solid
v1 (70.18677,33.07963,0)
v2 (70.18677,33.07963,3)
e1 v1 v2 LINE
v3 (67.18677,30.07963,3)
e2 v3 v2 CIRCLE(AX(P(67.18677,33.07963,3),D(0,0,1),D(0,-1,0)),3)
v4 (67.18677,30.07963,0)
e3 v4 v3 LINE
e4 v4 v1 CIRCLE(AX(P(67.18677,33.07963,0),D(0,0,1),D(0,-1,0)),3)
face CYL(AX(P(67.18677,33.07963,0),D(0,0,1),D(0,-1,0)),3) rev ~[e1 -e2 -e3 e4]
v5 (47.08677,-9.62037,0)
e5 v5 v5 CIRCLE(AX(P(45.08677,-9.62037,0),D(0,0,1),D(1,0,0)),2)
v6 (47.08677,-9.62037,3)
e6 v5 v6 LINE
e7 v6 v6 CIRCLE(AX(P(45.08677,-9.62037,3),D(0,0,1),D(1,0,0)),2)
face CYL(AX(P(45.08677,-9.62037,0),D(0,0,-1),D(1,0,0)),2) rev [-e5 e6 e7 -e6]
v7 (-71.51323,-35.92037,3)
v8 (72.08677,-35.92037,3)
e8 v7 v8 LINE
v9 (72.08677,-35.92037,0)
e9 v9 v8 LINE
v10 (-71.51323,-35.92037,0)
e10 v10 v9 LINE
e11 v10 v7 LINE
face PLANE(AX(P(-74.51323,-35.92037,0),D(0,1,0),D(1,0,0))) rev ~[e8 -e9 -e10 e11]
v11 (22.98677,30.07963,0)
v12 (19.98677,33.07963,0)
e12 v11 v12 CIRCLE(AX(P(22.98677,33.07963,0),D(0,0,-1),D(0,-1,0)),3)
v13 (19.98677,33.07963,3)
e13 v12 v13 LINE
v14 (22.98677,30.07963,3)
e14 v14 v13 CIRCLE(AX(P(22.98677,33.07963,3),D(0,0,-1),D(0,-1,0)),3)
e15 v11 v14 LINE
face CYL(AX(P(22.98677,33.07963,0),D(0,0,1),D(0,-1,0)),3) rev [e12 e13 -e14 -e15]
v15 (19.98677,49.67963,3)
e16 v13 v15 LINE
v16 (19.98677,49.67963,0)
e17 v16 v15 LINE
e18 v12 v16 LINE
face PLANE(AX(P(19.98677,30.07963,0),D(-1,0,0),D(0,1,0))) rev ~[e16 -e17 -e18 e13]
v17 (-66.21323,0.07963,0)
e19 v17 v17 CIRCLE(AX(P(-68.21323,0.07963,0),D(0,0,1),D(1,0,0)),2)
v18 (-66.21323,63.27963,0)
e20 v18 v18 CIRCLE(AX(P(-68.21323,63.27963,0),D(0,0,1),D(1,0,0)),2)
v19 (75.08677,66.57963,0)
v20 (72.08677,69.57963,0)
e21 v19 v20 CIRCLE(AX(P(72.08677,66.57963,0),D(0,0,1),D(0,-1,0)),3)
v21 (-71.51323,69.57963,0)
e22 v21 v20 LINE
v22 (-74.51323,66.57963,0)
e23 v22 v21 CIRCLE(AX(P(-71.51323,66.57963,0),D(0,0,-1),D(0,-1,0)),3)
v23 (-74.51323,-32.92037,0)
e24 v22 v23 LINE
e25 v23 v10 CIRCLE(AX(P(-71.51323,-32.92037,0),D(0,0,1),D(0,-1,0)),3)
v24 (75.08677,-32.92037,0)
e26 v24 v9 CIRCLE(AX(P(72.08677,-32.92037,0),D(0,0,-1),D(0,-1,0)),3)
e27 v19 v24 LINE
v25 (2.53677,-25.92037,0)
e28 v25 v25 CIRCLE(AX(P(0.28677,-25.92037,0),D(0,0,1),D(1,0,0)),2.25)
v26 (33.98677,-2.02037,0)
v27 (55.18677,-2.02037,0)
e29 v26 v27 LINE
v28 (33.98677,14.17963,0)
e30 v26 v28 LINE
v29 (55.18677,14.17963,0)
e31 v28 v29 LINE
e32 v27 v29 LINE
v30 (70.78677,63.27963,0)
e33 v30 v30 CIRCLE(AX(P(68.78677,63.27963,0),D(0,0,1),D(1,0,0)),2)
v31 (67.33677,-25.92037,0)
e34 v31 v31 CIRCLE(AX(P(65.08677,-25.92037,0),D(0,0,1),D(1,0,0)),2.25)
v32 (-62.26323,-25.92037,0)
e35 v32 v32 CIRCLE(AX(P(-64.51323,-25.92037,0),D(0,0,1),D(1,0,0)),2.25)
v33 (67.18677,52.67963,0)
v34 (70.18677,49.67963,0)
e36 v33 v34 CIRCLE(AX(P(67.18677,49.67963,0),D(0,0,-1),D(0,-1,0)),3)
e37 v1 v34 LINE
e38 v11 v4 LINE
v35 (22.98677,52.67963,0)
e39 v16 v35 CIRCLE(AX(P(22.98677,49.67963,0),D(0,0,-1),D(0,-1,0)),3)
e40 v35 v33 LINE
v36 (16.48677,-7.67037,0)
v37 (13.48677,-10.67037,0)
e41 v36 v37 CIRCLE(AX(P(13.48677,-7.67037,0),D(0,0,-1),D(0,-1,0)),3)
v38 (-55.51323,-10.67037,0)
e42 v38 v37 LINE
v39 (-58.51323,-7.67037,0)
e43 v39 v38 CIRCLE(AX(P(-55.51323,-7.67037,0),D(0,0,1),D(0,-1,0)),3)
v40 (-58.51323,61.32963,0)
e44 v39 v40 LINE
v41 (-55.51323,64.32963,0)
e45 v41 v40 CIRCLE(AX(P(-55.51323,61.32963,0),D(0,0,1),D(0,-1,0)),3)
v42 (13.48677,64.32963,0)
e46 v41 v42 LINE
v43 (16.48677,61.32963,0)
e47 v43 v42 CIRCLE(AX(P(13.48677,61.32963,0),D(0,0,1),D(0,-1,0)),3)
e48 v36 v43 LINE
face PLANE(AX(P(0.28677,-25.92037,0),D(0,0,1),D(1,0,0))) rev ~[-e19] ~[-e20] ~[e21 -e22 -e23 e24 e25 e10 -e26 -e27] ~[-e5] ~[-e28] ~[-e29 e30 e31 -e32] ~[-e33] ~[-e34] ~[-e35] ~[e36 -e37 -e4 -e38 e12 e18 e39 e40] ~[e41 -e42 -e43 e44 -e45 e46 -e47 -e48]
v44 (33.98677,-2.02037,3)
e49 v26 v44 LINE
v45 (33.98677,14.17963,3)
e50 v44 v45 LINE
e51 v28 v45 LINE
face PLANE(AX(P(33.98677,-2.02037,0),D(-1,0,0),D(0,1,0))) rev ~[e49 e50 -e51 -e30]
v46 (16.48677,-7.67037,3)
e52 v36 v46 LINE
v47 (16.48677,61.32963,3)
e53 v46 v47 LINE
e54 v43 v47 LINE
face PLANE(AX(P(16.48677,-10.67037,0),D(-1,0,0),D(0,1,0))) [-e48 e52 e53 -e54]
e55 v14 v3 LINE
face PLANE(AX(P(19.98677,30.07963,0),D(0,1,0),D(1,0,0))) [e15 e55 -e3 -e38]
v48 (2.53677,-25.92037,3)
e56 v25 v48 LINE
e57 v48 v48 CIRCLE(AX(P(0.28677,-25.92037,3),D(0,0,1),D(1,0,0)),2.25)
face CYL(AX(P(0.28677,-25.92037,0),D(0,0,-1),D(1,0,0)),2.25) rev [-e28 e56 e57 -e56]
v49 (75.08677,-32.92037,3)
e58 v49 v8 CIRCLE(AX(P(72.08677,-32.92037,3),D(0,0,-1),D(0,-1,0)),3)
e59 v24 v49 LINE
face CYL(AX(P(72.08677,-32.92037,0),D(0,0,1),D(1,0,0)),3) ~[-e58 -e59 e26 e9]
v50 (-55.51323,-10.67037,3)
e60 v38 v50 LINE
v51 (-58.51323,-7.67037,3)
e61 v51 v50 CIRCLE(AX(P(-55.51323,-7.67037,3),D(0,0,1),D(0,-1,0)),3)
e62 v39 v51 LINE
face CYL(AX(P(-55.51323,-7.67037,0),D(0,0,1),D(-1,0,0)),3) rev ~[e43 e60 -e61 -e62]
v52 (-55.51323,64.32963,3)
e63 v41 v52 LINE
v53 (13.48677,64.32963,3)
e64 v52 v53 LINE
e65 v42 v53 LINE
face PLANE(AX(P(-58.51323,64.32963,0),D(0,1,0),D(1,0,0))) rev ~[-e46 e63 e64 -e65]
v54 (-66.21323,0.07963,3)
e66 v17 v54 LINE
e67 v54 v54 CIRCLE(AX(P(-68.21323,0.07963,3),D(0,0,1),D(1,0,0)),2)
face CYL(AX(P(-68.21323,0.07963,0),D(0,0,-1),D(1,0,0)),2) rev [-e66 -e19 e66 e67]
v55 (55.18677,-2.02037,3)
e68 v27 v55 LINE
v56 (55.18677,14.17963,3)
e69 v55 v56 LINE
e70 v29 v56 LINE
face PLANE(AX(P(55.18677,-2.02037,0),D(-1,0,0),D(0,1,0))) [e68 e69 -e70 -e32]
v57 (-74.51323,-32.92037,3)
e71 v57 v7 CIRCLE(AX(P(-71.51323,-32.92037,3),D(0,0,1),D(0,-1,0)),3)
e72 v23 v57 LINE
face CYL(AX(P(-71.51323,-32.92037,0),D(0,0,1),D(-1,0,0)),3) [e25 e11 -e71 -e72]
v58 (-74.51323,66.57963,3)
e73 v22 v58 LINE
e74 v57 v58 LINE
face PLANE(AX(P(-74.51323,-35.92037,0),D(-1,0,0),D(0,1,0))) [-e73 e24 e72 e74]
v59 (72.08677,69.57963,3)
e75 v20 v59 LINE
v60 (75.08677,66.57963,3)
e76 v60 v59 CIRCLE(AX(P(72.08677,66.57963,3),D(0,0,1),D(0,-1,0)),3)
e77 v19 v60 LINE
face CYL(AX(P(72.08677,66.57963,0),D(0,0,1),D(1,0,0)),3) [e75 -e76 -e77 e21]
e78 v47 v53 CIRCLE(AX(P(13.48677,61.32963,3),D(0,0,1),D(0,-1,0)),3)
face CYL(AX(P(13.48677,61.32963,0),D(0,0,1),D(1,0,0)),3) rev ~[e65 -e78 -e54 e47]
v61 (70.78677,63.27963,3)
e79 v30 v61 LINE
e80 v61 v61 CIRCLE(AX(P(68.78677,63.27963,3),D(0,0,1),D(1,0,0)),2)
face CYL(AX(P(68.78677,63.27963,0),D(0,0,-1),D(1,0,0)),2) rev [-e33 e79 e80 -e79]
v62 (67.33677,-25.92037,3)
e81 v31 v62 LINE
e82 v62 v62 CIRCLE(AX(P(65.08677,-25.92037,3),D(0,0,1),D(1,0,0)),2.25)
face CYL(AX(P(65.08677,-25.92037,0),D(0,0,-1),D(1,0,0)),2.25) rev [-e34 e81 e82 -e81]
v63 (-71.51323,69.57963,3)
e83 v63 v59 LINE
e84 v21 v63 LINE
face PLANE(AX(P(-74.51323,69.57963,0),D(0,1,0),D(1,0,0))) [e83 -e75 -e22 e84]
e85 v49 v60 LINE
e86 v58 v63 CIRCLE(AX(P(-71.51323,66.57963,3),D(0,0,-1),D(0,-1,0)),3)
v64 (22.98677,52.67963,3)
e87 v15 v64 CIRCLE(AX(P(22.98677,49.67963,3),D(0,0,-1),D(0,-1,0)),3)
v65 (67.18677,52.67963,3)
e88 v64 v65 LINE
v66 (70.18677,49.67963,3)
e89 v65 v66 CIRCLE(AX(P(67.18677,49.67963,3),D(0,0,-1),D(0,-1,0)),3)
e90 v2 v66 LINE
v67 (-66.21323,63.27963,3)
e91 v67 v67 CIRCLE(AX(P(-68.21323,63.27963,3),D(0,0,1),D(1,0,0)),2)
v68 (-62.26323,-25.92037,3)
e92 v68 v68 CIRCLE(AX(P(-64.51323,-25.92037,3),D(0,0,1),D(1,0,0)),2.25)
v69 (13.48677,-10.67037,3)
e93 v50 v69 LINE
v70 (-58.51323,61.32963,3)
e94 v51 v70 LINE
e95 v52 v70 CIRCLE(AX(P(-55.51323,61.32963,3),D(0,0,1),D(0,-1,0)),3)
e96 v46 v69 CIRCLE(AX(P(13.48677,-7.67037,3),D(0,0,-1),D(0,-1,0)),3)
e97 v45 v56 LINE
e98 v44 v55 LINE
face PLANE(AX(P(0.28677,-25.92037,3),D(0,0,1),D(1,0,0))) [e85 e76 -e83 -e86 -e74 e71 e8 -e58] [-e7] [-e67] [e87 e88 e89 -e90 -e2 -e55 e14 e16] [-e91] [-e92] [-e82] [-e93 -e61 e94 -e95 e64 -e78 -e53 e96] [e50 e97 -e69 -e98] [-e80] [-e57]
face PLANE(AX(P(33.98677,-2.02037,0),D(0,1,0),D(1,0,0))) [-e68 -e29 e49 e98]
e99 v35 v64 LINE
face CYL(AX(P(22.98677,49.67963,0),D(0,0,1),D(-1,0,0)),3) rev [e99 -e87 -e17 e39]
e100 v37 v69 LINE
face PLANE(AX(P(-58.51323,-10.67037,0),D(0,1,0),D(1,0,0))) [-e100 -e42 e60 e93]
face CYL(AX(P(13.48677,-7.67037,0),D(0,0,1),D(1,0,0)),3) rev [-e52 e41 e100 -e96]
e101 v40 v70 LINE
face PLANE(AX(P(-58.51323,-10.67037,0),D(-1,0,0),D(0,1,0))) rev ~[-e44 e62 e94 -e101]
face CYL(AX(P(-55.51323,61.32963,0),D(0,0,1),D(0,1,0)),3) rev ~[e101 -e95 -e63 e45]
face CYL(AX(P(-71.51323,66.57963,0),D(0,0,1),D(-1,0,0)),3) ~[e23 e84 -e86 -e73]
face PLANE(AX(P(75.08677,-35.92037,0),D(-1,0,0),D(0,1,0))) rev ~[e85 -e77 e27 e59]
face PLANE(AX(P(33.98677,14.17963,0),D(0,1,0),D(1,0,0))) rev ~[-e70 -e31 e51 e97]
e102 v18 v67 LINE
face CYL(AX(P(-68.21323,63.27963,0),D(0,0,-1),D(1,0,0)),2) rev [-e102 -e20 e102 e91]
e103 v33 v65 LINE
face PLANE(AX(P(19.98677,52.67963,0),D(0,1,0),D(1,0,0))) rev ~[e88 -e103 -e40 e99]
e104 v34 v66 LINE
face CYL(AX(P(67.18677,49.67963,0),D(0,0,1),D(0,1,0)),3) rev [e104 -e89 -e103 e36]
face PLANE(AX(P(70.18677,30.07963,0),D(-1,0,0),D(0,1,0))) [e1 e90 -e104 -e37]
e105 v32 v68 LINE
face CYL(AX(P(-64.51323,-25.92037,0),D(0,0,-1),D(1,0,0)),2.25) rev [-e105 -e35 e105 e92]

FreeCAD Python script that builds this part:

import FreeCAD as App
import Part
import Sketcher

V = App.Vector


def edges_at(feature, points):
    """Names of the edges that pass closest to the given points."""
    edges = feature.Shape.Edges
    near = lambda p: min(range(len(edges)), key=lambda i: edges[i].distToShape(Part.Vertex(*p))[0])
    return sorted({f"Edge{near(p) + 1}" for p in points})

doc = App.newDocument("Part")
params = doc.addObject("Spreadsheet::Sheet", "Params")
for row, (alias, value) in enumerate([
    ("sketch1_diameter", "4 mm"),
    ("sketch1_diameter2", "4.5 mm"),
    ("sketch1_width", "75 mm"),
    ("sketch1_width2", "149.6 mm"),
    ("sketch1_width3", "21.2 mm"),
    ("pad1_length", "3 mm"),
    ("fillet_radius", "3 mm"),
    ("fillet2_radius", "3 mm"),
], start=1):
    params.set(f"A{row}", alias)
    params.set(f"B{row}", "=" + value)
    params.setAlias(f"B{row}", alias)

body = doc.addObject("PartDesign::Body", "Body")

# Sketch on XY plane
sketch1 = doc.addObject("Sketcher::SketchObject", "Sketch")
body.addObject(sketch1)
sketch1.AttachmentSupport = (doc.XY_Plane, [""])
sketch1.MapMode = "FlatFace"
sketch1.addGeometry([
    Part.LineSegment(V(-74.5, 69.6, 0), V(-74.5, -35.9, 0)),  # 0
    Part.LineSegment(V(-74.5, -35.9, 0), V(75.1, -35.9, 0)),  # 1
    Part.LineSegment(V(75.1, -35.9, 0), V(75.1, 69.6, 0)),  # 2
    Part.LineSegment(V(75.1, 69.6, 0), V(-74.5, 69.6, 0)),  # 3
    Part.Circle(V(-68.2, 0.1, 0), V(0, 0, 1), 2),  # 4
    Part.Circle(V(45.1, -9.6, 0), V(0, 0, 1), 2),  # 5
    Part.LineSegment(V(55.2, -2, 0), V(34, -2, 0)),  # 6
    Part.LineSegment(V(34, -2, 0), V(34, 14.2, 0)),  # 7
    Part.LineSegment(V(34, 14.2, 0), V(55.2, 14.2, 0)),  # 8
    Part.LineSegment(V(55.2, 14.2, 0), V(55.2, -2, 0)),  # 9
    Part.LineSegment(V(16.5, -10.7, 0), V(-58.5, -10.7, 0)),  # 10
    Part.LineSegment(V(-58.5, -10.7, 0), V(-58.5, 64.3, 0)),  # 11
    Part.LineSegment(V(-58.5, 64.3, 0), V(16.5, 64.3, 0)),  # 12
    Part.LineSegment(V(16.5, 64.3, 0), V(16.5, -10.7, 0)),  # 13
    Part.Circle(V(-68.2, 63.3, 0), V(0, 0, 1), 2),  # 14
    Part.LineSegment(V(70.2, 30.1, 0), V(20, 30.1, 0)),  # 15
    Part.LineSegment(V(20, 30.1, 0), V(20, 52.7, 0)),  # 16
    Part.LineSegment(V(20, 52.7, 0), V(70.2, 52.7, 0)),  # 17
    Part.LineSegment(V(70.2, 52.7, 0), V(70.2, 30.1, 0)),  # 18
    Part.Circle(V(68.8, 63.3, 0), V(0, 0, 1), 2),  # 19
    Part.Circle(V(65.1, -25.9, 0), V(0, 0, 1), 2.2),  # 20
    Part.Circle(V(-64.5, -25.9, 0), V(0, 0, 1), 2.2),  # 21
    Part.Circle(V(0.3, -25.9, 0), V(0, 0, 1), 2.2),  # 22
], False)
sketch1.addConstraint([
    Sketcher.Constraint("Coincident", 0, 2, 1, 1),
    Sketcher.Constraint("Coincident", 1, 2, 2, 1),
    Sketcher.Constraint("Coincident", 2, 2, 3, 1),
    Sketcher.Constraint("Coincident", 3, 2, 0, 1),
    Sketcher.Constraint("Coincident", 6, 2, 7, 1),
    Sketcher.Constraint("Coincident", 7, 2, 8, 1),
    Sketcher.Constraint("Coincident", 8, 2, 9, 1),
    Sketcher.Constraint("Coincident", 9, 2, 6, 1),
    Sketcher.Constraint("Coincident", 10, 2, 11, 1),
    Sketcher.Constraint("Coincident", 11, 2, 12, 1),
    Sketcher.Constraint("Coincident", 12, 2, 13, 1),
    Sketcher.Constraint("Coincident", 13, 2, 10, 1),
    Sketcher.Constraint("Coincident", 15, 2, 16, 1),
    Sketcher.Constraint("Coincident", 16, 2, 17, 1),
    Sketcher.Constraint("Coincident", 17, 2, 18, 1),
    Sketcher.Constraint("Coincident", 18, 2, 15, 1),
    Sketcher.Constraint("Vertical", 0),
    Sketcher.Constraint("Horizontal", 1),
    Sketcher.Constraint("Vertical", 2),
    Sketcher.Constraint("Horizontal", 3),
    Sketcher.Constraint("Horizontal", 6),
    Sketcher.Constraint("Vertical", 7),
    Sketcher.Constraint("Horizontal", 8),
    Sketcher.Constraint("Vertical", 9),
    Sketcher.Constraint("Horizontal", 10),
    Sketcher.Constraint("Vertical", 11),
    Sketcher.Constraint("Horizontal", 12),
    Sketcher.Constraint("Vertical", 13),
    Sketcher.Constraint("Horizontal", 15),
    Sketcher.Constraint("Vertical", 16),
    Sketcher.Constraint("Horizontal", 17),
    Sketcher.Constraint("Vertical", 18),
    Sketcher.Constraint("Equal", 4, 5),
    Sketcher.Constraint("Equal", 5, 14),
    Sketcher.Constraint("Equal", 14, 19),
    Sketcher.Constraint("Equal", 20, 21),
    Sketcher.Constraint("Equal", 21, 22),
    Sketcher.Constraint("Horizontal", 14, 3, 19, 3),
    Sketcher.Constraint("Horizontal", 20, 3, 21, 3),
    Sketcher.Constraint("Horizontal", 21, 3, 22, 3),
    Sketcher.Constraint("Vertical", 4, 3, 14, 3),
    Sketcher.Constraint("Equal", 12, 11),
    Sketcher.Constraint("Diameter", 4, 4.0),
    Sketcher.Constraint("Diameter", 20, 4.5),
    Sketcher.Constraint("DistanceX", 10, 2, 10, 1, 75.0),
    Sketcher.Constraint("DistanceX", 1, 1, 1, 2, 149.6),
    Sketcher.Constraint("DistanceX", 6, 2, 6, 1, 21.2),
    Sketcher.Constraint("DistanceX", 15, 2, 15, 1, 50.2),
    Sketcher.Constraint("DistanceY", 0, 2, 0, 1, 105.5),
    Sketcher.Constraint("DistanceY", 7, 1, 7, 2, 16.2),
    Sketcher.Constraint("DistanceY", 16, 1, 16, 2, 22.6),
    Sketcher.Constraint("DistanceX", 14, 3, 19, 3, 137.0),
    Sketcher.Constraint("DistanceX", 5, 3, 20, 3, 20.0),
    Sketcher.Constraint("DistanceY", 20, 3, 4, 3, 26.0),
    Sketcher.Constraint("DistanceX", 0, 2, 21, 3, 10.0),
    Sketcher.Constraint("DistanceY", 0, 2, 21, 3, 10.0),
    Sketcher.Constraint("DistanceX", 20, 3, 1, 2, 10.0),
    Sketcher.Constraint("DistanceX", 21, 3, 10, 2, 6.0),
    Sketcher.Constraint("DistanceX", 15, 2, 7, 2, 14.0),
    Sketcher.Constraint("DistanceX", 4, 3, 5, 3, 113.3),
    Sketcher.Constraint("DistanceY", 5, 3, 4, 3, 9.7),
    Sketcher.Constraint("DistanceY", 4, 3, 14, 3, 63.2),
    Sketcher.Constraint("DistanceX", 22, 3, 5, 3, 44.8),
    Sketcher.Constraint("DistanceX", 6, 2, 5, 3, 11.1),
    Sketcher.Constraint("DistanceY", 5, 3, 6, 2, 7.6),
    Sketcher.Constraint("DistanceY", 7, 2, 15, 2, 15.9),
    Sketcher.Constraint("DistanceY", 10, 2, 4, 3, 10.75),
    Sketcher.Constraint("DistanceX", 4, 3, -1, 1, 68.21323),
    Sketcher.Constraint("DistanceY", -1, 1, 4, 3, 0.07963),
])
sketch1.setExpression("Constraints[42]", "Params.sketch1_diameter")
sketch1.setExpression("Constraints[43]", "Params.sketch1_diameter2")
sketch1.setExpression("Constraints[44]", "Params.sketch1_width")
sketch1.setExpression("Constraints[45]", "Params.sketch1_width2")
sketch1.setExpression("Constraints[46]", "Params.sketch1_width3")
pad1 = doc.addObject("PartDesign::Pad", "Pad")
body.addObject(pad1)
pad1.Profile = sketch1
pad1.setExpression("Length", "Params.pad1_length")
doc.recompute()

fillet = doc.addObject("PartDesign::Fillet", "Fillet")
body.addObject(fillet)
fillet.Base = (pad1, edges_at(pad1, [
    (-58.513, 64.33, 1.5),
    (-58.513, -10.67, 1.5),
    (16.487, -10.67, 1.5),
    (16.487, 64.33, 1.5),
    (75.087, -35.92, 1.5),
    (-74.513, -35.92, 1.5),
    (-74.513, 69.58, 1.5),
    (75.087, 69.58, 1.5),
]))
fillet.setExpression("Radius", "Params.fillet_radius")
doc.recompute()

fillet2 = doc.addObject("PartDesign::Fillet", "Fillet001")
body.addObject(fillet2)
fillet2.Base = (fillet, edges_at(fillet, [
    (19.987, 52.68, 1.5),
    (19.987, 30.08, 1.5),
    (70.187, 30.08, 1.5),
    (70.187, 52.68, 1.5),
]))
fillet2.setExpression("Radius", "Params.fillet2_radius")

doc.recompute()
